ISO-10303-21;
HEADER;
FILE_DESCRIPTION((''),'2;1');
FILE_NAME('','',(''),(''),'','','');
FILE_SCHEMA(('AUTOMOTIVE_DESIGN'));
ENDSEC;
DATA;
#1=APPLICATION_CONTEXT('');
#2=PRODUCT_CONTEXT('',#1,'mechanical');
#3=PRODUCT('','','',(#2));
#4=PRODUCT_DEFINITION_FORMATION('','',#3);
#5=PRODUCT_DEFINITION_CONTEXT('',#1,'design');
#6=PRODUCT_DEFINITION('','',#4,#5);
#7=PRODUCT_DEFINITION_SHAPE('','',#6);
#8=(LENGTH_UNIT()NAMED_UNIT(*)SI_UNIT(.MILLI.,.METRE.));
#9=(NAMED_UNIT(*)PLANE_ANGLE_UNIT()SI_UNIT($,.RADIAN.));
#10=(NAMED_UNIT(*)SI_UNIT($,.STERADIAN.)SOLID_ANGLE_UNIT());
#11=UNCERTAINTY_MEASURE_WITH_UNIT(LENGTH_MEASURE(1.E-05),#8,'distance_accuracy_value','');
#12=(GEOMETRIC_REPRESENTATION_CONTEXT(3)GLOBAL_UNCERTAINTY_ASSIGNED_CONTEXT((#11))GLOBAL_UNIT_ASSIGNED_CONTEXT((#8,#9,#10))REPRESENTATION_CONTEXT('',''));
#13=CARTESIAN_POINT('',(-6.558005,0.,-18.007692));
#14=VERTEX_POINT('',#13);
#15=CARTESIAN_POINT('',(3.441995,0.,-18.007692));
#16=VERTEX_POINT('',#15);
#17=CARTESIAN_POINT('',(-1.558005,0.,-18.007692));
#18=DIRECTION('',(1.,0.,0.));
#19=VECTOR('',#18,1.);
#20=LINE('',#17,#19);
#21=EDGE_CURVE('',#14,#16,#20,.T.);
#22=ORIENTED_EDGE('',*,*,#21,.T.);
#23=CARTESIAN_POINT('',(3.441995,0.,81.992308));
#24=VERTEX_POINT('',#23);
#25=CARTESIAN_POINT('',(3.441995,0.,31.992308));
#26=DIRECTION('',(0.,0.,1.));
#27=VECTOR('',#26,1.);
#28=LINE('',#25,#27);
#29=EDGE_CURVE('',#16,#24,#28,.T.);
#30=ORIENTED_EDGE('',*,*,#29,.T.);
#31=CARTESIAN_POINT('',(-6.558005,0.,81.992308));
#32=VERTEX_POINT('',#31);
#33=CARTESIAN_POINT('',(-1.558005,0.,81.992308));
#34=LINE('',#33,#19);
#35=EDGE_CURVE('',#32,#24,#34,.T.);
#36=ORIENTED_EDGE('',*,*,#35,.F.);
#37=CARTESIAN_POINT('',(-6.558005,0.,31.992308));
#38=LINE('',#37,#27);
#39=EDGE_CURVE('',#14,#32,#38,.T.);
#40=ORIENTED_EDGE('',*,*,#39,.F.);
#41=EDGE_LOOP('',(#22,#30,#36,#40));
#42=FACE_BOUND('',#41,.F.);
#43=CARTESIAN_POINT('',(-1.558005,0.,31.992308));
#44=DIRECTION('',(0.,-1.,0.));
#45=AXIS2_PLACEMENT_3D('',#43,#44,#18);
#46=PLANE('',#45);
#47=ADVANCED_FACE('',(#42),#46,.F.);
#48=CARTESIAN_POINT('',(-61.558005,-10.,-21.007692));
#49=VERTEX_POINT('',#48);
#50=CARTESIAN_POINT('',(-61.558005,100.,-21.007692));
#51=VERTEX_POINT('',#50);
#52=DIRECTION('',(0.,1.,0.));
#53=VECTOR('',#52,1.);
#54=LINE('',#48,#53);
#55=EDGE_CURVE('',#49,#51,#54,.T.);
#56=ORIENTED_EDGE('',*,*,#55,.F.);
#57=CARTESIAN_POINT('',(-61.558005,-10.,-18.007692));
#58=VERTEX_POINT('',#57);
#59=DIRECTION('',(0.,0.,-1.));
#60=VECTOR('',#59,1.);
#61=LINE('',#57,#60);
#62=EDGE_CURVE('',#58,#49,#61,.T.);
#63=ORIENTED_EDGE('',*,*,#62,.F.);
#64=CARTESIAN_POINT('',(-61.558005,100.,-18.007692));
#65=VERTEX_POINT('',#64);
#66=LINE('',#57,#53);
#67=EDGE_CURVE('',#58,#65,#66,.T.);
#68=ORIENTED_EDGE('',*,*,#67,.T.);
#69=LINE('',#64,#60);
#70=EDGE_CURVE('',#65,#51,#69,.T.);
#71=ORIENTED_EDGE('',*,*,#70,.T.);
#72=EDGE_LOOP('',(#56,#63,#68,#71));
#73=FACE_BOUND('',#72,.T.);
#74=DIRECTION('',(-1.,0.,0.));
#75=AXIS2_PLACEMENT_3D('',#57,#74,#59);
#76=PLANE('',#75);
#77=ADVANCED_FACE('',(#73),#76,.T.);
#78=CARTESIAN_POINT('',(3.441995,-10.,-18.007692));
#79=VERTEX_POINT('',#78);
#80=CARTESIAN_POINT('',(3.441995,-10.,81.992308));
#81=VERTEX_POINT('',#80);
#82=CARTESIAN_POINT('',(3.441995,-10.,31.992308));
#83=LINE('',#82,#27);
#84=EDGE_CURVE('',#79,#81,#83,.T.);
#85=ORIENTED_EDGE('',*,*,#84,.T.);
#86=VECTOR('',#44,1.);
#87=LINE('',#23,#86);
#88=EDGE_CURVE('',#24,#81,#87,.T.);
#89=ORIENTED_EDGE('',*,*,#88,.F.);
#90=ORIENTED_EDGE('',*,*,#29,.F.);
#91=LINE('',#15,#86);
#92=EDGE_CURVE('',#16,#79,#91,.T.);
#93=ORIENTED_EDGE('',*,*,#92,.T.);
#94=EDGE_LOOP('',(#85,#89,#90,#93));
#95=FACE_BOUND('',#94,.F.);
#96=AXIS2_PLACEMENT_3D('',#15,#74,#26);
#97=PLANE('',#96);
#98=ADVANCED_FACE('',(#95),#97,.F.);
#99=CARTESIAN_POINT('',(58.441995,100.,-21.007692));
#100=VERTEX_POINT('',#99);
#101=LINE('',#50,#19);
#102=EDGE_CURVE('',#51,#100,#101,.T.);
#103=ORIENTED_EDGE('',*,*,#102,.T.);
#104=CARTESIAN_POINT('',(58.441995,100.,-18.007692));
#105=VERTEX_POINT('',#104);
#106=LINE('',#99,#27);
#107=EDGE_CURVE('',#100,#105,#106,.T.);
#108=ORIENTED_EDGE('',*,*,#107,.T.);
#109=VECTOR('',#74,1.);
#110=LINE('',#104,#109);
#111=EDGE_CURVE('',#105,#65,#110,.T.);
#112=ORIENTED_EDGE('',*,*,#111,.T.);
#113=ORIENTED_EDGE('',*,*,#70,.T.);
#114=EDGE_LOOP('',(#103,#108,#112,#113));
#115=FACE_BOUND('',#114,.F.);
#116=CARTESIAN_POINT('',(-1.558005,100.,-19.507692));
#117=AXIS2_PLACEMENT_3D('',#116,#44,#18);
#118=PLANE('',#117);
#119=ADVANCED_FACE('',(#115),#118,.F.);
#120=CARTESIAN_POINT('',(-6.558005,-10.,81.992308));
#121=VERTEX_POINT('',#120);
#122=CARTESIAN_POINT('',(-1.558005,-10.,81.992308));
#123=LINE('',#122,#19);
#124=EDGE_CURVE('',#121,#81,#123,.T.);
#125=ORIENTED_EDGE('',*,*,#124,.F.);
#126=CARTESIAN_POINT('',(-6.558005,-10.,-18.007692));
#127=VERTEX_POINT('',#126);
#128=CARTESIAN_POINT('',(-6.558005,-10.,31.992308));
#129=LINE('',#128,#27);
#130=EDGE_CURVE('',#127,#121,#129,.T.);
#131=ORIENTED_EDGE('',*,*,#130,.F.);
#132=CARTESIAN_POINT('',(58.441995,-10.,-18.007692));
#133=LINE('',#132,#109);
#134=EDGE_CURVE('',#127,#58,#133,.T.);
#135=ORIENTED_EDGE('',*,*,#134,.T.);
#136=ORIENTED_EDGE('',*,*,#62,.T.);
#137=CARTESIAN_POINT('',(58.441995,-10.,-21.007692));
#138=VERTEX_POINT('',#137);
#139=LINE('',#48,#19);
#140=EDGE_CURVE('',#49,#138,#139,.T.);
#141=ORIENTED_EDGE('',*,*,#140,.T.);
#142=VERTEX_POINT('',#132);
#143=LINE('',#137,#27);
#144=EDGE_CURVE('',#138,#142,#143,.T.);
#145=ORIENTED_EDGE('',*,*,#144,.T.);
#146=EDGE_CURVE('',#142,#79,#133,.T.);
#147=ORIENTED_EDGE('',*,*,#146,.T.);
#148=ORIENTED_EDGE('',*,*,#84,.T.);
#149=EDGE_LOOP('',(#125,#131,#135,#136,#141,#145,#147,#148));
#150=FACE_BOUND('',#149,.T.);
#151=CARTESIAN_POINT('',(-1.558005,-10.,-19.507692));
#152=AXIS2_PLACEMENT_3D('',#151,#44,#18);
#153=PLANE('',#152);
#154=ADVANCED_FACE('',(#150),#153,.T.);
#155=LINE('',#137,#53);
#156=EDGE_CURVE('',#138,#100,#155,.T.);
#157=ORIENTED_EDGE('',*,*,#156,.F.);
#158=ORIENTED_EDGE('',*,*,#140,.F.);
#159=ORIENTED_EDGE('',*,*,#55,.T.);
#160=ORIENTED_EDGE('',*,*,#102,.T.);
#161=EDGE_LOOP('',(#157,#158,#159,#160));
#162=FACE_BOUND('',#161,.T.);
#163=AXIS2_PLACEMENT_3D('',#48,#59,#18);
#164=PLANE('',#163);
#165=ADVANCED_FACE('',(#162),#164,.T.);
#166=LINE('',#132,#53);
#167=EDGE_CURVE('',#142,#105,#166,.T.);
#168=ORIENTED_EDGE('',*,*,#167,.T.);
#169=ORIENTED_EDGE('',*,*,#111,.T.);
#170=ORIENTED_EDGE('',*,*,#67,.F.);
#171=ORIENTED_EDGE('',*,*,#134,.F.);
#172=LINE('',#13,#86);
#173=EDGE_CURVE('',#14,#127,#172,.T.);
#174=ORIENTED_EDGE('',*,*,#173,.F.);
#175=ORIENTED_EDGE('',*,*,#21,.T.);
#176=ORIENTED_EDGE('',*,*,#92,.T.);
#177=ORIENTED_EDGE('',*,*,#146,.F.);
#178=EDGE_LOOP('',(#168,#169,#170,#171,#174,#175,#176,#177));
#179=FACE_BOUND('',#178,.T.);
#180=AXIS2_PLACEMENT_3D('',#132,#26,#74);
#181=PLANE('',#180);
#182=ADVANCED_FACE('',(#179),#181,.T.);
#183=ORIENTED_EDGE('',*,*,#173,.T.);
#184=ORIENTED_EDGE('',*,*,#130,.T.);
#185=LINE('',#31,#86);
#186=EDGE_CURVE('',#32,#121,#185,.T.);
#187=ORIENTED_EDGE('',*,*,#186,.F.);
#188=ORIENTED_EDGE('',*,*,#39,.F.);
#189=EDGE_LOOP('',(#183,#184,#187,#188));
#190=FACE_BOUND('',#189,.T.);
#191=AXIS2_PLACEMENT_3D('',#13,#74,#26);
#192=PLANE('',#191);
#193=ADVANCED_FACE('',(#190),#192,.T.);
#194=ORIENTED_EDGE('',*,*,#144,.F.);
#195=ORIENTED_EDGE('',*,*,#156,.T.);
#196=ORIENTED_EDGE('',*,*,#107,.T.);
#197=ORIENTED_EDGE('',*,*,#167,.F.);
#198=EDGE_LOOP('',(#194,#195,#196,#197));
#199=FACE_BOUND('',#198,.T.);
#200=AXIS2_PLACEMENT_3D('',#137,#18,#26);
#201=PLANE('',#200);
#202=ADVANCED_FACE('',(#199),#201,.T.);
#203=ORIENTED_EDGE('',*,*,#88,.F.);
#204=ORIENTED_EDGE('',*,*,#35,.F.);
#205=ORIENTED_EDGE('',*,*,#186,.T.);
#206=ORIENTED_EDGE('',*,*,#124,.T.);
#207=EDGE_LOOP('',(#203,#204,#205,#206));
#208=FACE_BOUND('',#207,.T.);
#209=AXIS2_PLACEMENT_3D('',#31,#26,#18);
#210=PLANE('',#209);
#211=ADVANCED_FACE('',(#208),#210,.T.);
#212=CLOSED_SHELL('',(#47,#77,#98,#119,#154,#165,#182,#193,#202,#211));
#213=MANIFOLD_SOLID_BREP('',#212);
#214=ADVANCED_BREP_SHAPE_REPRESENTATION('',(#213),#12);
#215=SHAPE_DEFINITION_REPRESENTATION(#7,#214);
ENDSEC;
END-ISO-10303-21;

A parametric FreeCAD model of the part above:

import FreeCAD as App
import Part
import Sketcher


def add_polygon(sketch, points):
    """Adds a closed chain of lines whose ends are joined by coincident constraints."""
    first, n = sketch.GeometryCount, len(points)
    for a, b in zip(points, points[1:] + points[:1]):
        sketch.addGeometry(Part.LineSegment(App.Vector(*a, 0), App.Vector(*b, 0)), False)
    for i in range(n):
        sketch.addConstraint(Sketcher.Constraint("Coincident", first + i, 2, first + (i + 1) % n, 1))

doc = App.newDocument("Part")
body = doc.addObject("PartDesign::Body", "Body")

sketch1 = doc.addObject("Sketcher::SketchObject", "Sketch")
body.addObject(sketch1)
sketch1.AttachmentSupport = (doc.XZ_Plane, [""])
sketch1.MapMode = "FlatFace"
add_polygon(sketch1, [(-7, 82), (-7, -18), (3, -18), (3, 82)])
sketch1.addConstraint([
    Sketcher.Constraint("Vertical", 0),
    Sketcher.Constraint("Horizontal", 1),
    Sketcher.Constraint("Vertical", 2),
    Sketcher.Constraint("Horizontal", 3),
    Sketcher.Constraint("DistanceX", 1, 1, 1, 2, 10.0),
    Sketcher.Constraint("DistanceY", 0, 2, 0, 1, 100.0),
    Sketcher.Constraint("DistanceY", 0, 2, -1, 1, 18.007692),
    Sketcher.Constraint("DistanceX", 0, 2, -1, 1, 6.558005),
])
pad1 = doc.addObject("PartDesign::Pad", "Pad")
body.addObject(pad1)
pad1.Profile = sketch1
pad1.Length = 10

sketch2 = doc.addObject("Sketcher::SketchObject", "Sketch001")
body.addObject(sketch2)
sketch2.AttachmentSupport = (doc.XZ_Plane, [""])
sketch2.MapMode = "FlatFace"
sketch2.AttachmentOffset = App.Placement(App.Vector(0, 0, 10), App.Rotation())
add_polygon(sketch2, [(-61.6, -18), (-61.6, -21), (58.4, -21), (58.4, -18)])
sketch2.addConstraint([
    Sketcher.Constraint("Vertical", 0),
    Sketcher.Constraint("Horizontal", 1),
    Sketcher.Constraint("Vertical", 2),
    Sketcher.Constraint("Horizontal", 3),
    Sketcher.Constraint("DistanceX", 1, 1, 1, 2, 120.0),
    Sketcher.Constraint("DistanceY", 0, 2, 0, 1, 3.0),
    Sketcher.Constraint("DistanceY", 0, 2, -1, 1, 21.007692),
    Sketcher.Constraint("DistanceX", 0, 2, -1, 1, 61.558005),
])
pad2 = doc.addObject("PartDesign::Pad", "Pad001")
body.addObject(pad2)
pad2.Profile = sketch2
pad2.Length = 110
pad2.Reversed = True

doc.recompute()
